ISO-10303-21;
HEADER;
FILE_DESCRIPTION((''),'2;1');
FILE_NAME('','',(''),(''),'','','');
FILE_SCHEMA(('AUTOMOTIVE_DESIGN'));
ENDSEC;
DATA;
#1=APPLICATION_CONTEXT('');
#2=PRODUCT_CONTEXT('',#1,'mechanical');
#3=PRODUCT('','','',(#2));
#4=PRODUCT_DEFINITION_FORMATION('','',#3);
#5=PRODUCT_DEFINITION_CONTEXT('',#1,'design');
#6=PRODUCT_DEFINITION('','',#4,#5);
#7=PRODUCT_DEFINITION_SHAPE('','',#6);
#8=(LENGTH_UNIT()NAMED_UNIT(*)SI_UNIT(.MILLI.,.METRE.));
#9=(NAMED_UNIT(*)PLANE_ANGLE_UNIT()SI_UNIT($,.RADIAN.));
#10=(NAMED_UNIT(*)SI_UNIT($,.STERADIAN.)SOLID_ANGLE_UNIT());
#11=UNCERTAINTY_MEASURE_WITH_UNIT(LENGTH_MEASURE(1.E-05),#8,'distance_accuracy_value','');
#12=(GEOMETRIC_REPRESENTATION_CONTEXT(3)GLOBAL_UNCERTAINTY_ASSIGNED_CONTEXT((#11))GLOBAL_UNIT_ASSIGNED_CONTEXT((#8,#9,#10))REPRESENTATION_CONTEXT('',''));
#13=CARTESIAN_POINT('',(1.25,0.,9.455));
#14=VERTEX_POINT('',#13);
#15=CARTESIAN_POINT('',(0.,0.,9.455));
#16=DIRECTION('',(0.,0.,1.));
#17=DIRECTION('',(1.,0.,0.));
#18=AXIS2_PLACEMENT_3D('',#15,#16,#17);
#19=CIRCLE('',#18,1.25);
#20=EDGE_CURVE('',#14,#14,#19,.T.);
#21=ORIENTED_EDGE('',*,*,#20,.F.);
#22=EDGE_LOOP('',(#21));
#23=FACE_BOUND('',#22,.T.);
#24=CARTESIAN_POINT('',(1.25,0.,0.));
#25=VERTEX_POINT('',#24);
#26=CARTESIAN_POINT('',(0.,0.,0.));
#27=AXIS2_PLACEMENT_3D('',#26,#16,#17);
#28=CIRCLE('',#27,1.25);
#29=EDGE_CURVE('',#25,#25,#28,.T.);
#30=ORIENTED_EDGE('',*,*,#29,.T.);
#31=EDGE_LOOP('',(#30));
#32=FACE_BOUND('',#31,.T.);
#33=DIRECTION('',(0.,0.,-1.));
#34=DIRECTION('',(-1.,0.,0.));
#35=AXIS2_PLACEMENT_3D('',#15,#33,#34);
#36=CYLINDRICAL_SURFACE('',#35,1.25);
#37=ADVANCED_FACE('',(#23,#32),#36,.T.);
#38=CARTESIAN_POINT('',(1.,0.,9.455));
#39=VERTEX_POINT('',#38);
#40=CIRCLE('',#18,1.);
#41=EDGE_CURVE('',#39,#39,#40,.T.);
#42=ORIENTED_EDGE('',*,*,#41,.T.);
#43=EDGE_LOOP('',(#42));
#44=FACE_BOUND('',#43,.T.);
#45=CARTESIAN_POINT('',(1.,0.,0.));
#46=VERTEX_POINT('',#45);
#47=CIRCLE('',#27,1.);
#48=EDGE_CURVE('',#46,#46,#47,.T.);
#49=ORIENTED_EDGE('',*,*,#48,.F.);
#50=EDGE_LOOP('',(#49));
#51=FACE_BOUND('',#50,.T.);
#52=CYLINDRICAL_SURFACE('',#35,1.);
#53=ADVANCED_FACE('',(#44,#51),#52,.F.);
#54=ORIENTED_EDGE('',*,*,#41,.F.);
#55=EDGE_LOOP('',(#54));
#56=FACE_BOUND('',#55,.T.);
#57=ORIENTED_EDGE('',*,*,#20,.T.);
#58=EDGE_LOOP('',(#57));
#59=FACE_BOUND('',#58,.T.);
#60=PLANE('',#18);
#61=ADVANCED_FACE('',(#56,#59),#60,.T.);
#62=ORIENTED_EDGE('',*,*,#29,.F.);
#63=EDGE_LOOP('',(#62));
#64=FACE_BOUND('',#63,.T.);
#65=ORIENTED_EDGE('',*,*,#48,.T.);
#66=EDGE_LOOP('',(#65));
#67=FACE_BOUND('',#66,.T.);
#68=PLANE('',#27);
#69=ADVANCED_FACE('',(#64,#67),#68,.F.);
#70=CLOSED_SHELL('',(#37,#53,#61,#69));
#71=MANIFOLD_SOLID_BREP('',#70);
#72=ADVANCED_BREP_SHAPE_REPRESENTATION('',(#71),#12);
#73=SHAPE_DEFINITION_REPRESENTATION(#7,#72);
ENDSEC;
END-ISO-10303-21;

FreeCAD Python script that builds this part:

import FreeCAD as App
import Part
import Sketcher
from FreeCAD import Vector
Q = App.Units.Quantity

doc = App.newDocument("Part")
body = doc.addObject("PartDesign::Body", "Body")

sketch1 = body.newObject("Sketcher::SketchObject", "Sketch")
sketch1.AttachmentSupport = (doc.getObject("XY_Plane"), [""])
sketch1.MapMode = "FlatFace"
sketch1.addGeometry(Part.Circle(Vector(0, 0, 0), Vector(0, 0, 1), 1.2), False)
sketch1.addGeometry(Part.Circle(Vector(0, 0, 0), Vector(0, 0, 1), 1), False)
sketch1.addConstraint(Sketcher.Constraint("Coincident", 0, 3, -1, 1))
sketch1.addConstraint(Sketcher.Constraint("Coincident", 1, 3, -1, 1))
sketch1.addConstraint(Sketcher.Constraint("Diameter", 1, Q("2 mm")))
sketch1.addConstraint(Sketcher.Constraint("Diameter", 0, Q("2.5 mm")))
pad1 = body.newObject("PartDesign::Pad", "Pad")
pad1.Profile = sketch1
pad1.Length = 9.455

doc.recompute()
